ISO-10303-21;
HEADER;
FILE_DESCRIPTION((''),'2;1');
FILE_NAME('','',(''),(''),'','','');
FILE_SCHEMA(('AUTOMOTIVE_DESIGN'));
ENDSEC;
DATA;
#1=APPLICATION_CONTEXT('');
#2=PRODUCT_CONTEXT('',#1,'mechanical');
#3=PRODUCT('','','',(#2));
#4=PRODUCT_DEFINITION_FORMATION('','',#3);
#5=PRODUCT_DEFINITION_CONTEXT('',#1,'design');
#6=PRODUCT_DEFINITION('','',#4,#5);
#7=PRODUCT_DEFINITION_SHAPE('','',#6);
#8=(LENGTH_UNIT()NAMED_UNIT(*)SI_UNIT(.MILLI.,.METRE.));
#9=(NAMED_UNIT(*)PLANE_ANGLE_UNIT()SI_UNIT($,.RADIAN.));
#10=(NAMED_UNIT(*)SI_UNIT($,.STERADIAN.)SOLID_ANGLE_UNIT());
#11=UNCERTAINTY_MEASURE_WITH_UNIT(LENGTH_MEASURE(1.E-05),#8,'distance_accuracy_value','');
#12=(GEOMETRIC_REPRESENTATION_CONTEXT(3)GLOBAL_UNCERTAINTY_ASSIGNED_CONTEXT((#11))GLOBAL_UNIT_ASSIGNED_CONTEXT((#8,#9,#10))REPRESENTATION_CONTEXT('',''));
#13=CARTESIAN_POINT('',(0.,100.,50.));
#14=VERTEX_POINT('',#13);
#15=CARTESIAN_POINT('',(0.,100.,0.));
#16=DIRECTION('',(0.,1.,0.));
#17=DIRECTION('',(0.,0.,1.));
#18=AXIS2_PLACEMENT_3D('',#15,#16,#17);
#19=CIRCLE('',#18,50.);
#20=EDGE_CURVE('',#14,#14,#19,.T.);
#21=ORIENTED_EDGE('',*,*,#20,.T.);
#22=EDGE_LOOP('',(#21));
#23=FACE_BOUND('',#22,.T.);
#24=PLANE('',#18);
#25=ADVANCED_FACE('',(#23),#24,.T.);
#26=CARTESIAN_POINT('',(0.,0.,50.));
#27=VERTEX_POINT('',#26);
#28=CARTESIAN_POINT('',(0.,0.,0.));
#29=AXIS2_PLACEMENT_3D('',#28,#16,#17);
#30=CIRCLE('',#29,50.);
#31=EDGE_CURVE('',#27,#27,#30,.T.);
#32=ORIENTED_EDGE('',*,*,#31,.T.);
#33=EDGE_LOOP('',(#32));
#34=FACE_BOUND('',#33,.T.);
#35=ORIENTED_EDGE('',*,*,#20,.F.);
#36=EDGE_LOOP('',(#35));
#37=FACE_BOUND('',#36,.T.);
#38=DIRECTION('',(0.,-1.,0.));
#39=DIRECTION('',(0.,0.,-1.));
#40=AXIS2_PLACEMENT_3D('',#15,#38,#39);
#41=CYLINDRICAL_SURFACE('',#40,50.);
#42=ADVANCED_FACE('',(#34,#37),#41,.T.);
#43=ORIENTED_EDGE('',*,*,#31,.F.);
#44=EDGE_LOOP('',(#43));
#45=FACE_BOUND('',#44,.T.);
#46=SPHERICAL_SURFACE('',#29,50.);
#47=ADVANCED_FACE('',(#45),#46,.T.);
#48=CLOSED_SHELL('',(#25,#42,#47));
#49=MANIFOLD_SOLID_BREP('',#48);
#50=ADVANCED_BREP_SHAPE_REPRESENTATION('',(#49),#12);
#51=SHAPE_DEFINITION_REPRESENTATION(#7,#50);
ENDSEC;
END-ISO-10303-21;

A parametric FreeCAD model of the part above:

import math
import FreeCAD as App
import Part
import Sketcher
from FreeCAD import Vector

doc = App.newDocument("Part")
body = doc.addObject("PartDesign::Body", "Body")

# Sketch on XZ plane
sketch1 = doc.addObject("Sketcher::SketchObject", "Sketch")
body.addObject(sketch1)
sketch1.AttachmentSupport = (doc.XZ_Plane, [""])
sketch1.MapMode = "FlatFace"
sketch1.addGeometry(Part.Circle(Vector(0, 0, 0), Vector(0, 0, 1), 50), False)
sketch1.addConstraint([
    Sketcher.Constraint("Coincident", 0, 3, -1, 1),
    Sketcher.Constraint("Diameter", 0, 100.0),
])
pad1 = doc.addObject("PartDesign::Pad", "Pad")
body.addObject(pad1)
pad1.Profile = sketch1
pad1.Length = 100
pad1.Reversed = True

# Sketch on YZ plane
sketch2 = doc.addObject("Sketcher::SketchObject", "Sketch001")
body.addObject(sketch2)
sketch2.AttachmentSupport = (doc.YZ_Plane, [""])
sketch2.MapMode = "FlatFace"
sketch2.addGeometry([
    Part.LineSegment(Vector(0, 0, 0), Vector(0, 50, 0)),
    Part.ArcOfCircle(Part.Circle(Vector(0, 0, 0), Vector(0, 0, 1), 50), math.radians(90), math.radians(180)),
    Part.LineSegment(Vector(-50, 0, 0), Vector(0, 0, 0)),
], False)
sketch2.addConstraint([
    Sketcher.Constraint("Coincident", 0, 2, 1, 1),
    Sketcher.Constraint("Coincident", 1, 2, 2, 1),
    Sketcher.Constraint("Coincident", 2, 2, 0, 1),
    Sketcher.Constraint("Vertical", 0),
    Sketcher.Constraint("Horizontal", 2),
    Sketcher.Constraint("Coincident", 1, 3, -1, 1),
    Sketcher.Constraint("Coincident", 2, 2, -1, 1),
    Sketcher.Constraint("Radius", 1, 50.0),
])
revolution = doc.addObject("PartDesign::Revolution", "Revolution")
body.addObject(revolution)
revolution.Profile = sketch2
revolution.ReferenceAxis = (sketch2, ["H_Axis"])
revolution.Angle = 360

doc.recompute()
